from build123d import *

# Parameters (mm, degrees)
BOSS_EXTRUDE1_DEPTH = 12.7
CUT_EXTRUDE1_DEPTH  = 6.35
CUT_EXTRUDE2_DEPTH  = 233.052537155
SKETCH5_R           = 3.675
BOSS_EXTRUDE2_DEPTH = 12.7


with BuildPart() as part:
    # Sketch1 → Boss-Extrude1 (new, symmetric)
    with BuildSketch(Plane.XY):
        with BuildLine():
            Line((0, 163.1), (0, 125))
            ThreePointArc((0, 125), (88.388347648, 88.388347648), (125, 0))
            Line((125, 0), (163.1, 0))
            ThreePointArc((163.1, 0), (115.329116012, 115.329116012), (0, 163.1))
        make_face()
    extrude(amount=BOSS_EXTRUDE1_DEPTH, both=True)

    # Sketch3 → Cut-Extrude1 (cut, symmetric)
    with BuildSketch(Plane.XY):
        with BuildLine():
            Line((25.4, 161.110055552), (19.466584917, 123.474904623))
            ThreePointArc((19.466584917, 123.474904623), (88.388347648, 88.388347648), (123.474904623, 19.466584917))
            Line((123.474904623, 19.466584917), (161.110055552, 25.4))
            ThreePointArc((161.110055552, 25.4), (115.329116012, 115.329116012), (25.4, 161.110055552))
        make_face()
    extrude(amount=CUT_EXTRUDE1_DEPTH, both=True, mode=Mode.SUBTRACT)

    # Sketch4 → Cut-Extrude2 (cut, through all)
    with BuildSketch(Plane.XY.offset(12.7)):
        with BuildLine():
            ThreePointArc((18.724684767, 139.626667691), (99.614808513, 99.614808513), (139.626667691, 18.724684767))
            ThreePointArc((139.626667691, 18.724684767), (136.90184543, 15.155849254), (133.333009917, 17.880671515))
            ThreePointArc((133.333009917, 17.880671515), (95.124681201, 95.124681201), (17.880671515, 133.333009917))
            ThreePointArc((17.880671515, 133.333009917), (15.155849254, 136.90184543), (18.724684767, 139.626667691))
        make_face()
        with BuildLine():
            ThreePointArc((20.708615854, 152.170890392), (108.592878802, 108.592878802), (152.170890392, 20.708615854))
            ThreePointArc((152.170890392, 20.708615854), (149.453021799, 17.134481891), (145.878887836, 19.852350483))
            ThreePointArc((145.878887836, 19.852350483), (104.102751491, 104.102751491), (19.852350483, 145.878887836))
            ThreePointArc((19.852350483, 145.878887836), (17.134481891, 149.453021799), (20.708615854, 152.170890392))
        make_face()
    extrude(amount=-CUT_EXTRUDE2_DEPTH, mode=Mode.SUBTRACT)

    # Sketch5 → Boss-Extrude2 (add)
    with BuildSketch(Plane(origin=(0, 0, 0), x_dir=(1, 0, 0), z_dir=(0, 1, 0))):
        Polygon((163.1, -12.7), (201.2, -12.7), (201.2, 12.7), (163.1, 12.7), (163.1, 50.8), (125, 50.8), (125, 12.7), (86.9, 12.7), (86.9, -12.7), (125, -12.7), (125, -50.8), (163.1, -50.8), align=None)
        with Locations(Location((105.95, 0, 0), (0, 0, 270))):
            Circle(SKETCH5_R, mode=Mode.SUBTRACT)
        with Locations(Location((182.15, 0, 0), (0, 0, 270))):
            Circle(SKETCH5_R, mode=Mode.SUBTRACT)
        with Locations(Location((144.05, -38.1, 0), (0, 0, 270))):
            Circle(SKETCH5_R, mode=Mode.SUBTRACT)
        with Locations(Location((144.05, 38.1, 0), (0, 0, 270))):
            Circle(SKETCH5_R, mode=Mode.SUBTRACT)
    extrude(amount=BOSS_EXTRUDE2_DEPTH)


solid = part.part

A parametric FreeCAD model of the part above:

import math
import FreeCAD as App
import Part
import Sketcher
from FreeCAD import Vector
Q = App.Units.Quantity


def add_polygon(sketch, points):
    """Adds a closed chain of lines whose ends are joined by coincident constraints."""
    first, n = sketch.GeometryCount, len(points)
    for a, b in zip(points, points[1:] + points[:1]):
        sketch.addGeometry(Part.LineSegment(App.Vector(*a, 0), App.Vector(*b, 0)), False)
    for i in range(n):
        sketch.addConstraint(Sketcher.Constraint("Coincident", first + i, 2, first + (i + 1) % n, 1))

doc = App.newDocument("Part")
body = doc.addObject("PartDesign::Body", "Body")

# Sketch on XY plane
sketch1 = doc.addObject("Sketcher::SketchObject", "Sketch")
body.addObject(sketch1)
sketch1.AttachmentSupport = (doc.XY_Plane, [""])
sketch1.MapMode = "FlatFace"
sketch1.addGeometry([
    Part.LineSegment(Vector(0, 163.1, 0), Vector(0, 125, 0)),
    Part.ArcOfCircle(Part.Circle(Vector(0, 0, 0), Vector(0, 0, 1), 125), math.radians(0), math.radians(90)),
    Part.LineSegment(Vector(125, 0, 0), Vector(163.1, 0, 0)),
    Part.ArcOfCircle(Part.Circle(Vector(0, 0, 0), Vector(0, 0, 1), 163.1), math.radians(0), math.radians(90)),
], False)
sketch1.addConstraint([
    Sketcher.Constraint("Coincident", 0, 2, 1, 2),
    Sketcher.Constraint("Coincident", 1, 1, 2, 1),
    Sketcher.Constraint("Coincident", 2, 2, 3, 1),
    Sketcher.Constraint("Coincident", 3, 2, 0, 1),
    Sketcher.Constraint("Vertical", 0),
    Sketcher.Constraint("Horizontal", 2),
    Sketcher.Constraint("Coincident", 1, 3, -1, 1),
    Sketcher.Constraint("Coincident", 3, 3, -1, 1),
    Sketcher.Constraint("PointOnObject", 0, 2, -2),
    Sketcher.Constraint("PointOnObject", 1, 1, -1),
    Sketcher.Constraint("DistanceX", 2, 1, 2, 2, Q("1.5 in")),
    Sketcher.Constraint("Radius", 1, 125.0),
])
pad1 = doc.addObject("PartDesign::Pad", "Pad")
body.addObject(pad1)
pad1.Profile = sketch1
pad1.Length = Q("1 in")
pad1.Midplane = True

# Sketch on XY plane
sketch2 = doc.addObject("Sketcher::SketchObject", "Sketch001")
body.addObject(sketch2)
sketch2.AttachmentSupport = (doc.XY_Plane, [""])
sketch2.MapMode = "FlatFace"
sketch2.addGeometry([
    Part.LineSegment(Vector(25.4, 161.110056, 0), Vector(19.466585, 123.474905, 0)),
    Part.ArcOfCircle(Part.Circle(Vector(0, 0, 0), Vector(0, 0, 1), 125), math.radians(8.959292), math.radians(81.040708)),
    Part.LineSegment(Vector(123.474905, 19.466585, 0), Vector(161.110056, 25.4, 0)),
    Part.ArcOfCircle(Part.Circle(Vector(0, 0, 0), Vector(0, 0, 1), 163.1), math.radians(8.959292), math.radians(81.040708)),
], False)
sketch2.addConstraint([
    Sketcher.Constraint("Coincident", 0, 2, 1, 2),
    Sketcher.Constraint("Coincident", 1, 1, 2, 1),
    Sketcher.Constraint("Coincident", 2, 2, 3, 1),
    Sketcher.Constraint("Coincident", 3, 2, 0, 1),
    Sketcher.Constraint("Coincident", 1, 3, -1, 1),
    Sketcher.Constraint("Coincident", 3, 3, -1, 1),
    Sketcher.Constraint("DistanceY", -1, 1, 2, 2, Q("1 in")),
    Sketcher.Constraint("DistanceX", -1, 1, 3, 2, Q("1 in")),
    Sketcher.Constraint("Distance", 0, Q("1.5 in")),
    Sketcher.Constraint("Radius", 1, 125.0),
    Sketcher.Constraint("DistanceX", 0, 2, 1, 1, 104.00832),
    Sketcher.Constraint("DistanceY", 1, 1, 0, 2, 104.00832),
])
pocket1 = doc.addObject("PartDesign::Pocket", "Pocket")
body.addObject(pocket1)
pocket1.Profile = sketch2
pocket1.Length = Q("0.5 in")
pocket1.Midplane = True

# Sketch on XY plane
sketch3 = doc.addObject("Sketcher::SketchObject", "Sketch002")
body.addObject(sketch3)
sketch3.AttachmentSupport = (doc.XY_Plane, [""])
sketch3.MapMode = "FlatFace"
sketch3.AttachmentOffset = App.Placement(Vector(0, 0, 0.5 * 25.4), App.Rotation())
sketch3.addGeometry([
    Part.ArcOfCircle(Part.Circle(Vector(0, 0, 0), Vector(0, 0, 1), 140.876613), math.radians(7.6381), math.radians(82.3619)),  # 0
    Part.ArcOfCircle(Part.Circle(Vector(18.302678, 136.479839, 0), Vector(0, 0, 1), 3.174999), math.radians(82.3619), math.radians(262.3619)),  # 1
    Part.ArcOfCircle(Part.Circle(Vector(0, 0, 0), Vector(0, 0, 1), 134.526614), math.radians(7.6381), math.radians(82.3619)),  # 2
    Part.ArcOfCircle(Part.Circle(Vector(136.479839, 18.302678, 0), Vector(0, 0, 1), 3.174999), math.radians(-172.3619), math.radians(7.6381)),  # 3
    Part.ArcOfCircle(Part.Circle(Vector(0, 0, 0), Vector(0, 0, 1), 153.573522), math.radians(7.749655), math.radians(82.250345)),  # 4
    Part.ArcOfCircle(Part.Circle(Vector(20.280483, 149.024889, 0), Vector(0, 0, 1), 3.174999), math.radians(82.250345), math.radians(262.250345)),  # 5
    Part.ArcOfCircle(Part.Circle(Vector(0, 0, 0), Vector(0, 0, 1), 147.223523), math.radians(7.749655), math.radians(82.250345)),  # 6
    Part.ArcOfCircle(Part.Circle(Vector(149.024889, 20.280483, 0), Vector(0, 0, 1), 3.174999), math.radians(-172.250345), math.radians(7.749655)),  # 7
], False)
sketch3.addConstraint([
    Sketcher.Constraint("Tangent", 0, 2, 1, 1),
    Sketcher.Constraint("Tangent", 1, 2, 2, 2),
    Sketcher.Constraint("Tangent", 2, 1, 3, 1),
    Sketcher.Constraint("Tangent", 3, 2, 0, 1),
    Sketcher.Constraint("Tangent", 4, 2, 5, 1),
    Sketcher.Constraint("Tangent", 5, 2, 6, 2),
    Sketcher.Constraint("Tangent", 6, 1, 7, 1),
    Sketcher.Constraint("Tangent", 7, 2, 4, 1),
    Sketcher.Constraint("Coincident", 0, 3, -1, 1),
    Sketcher.Constraint("Coincident", 2, 3, -1, 1),
    Sketcher.Constraint("Coincident", 4, 3, -1, 1),
    Sketcher.Constraint("Coincident", 6, 3, -1, 1),
    Sketcher.Constraint("Equal", 3, 5),
    Sketcher.Constraint("Radius", 1, Q("0.125 in")),
    Sketcher.Constraint("Radius", 4, 153.573522),
    Sketcher.Constraint("DistanceX", -1, 1, 4, 2, Q("0.8152998 in")),
    Sketcher.Constraint("DistanceY", -1, 1, 7, 2, Q("0.8152998 in")),
    Sketcher.Constraint("Radius", 0, 140.876613),
    Sketcher.Constraint("DistanceX", 0, 2, 5, 3, 1.555798),
    Sketcher.Constraint("DistanceY", 3, 2, 7, 3, 1.555798),
])
pocket2 = doc.addObject("PartDesign::Pocket", "Pocket001")
body.addObject(pocket2)
pocket2.Profile = sketch3
pocket2.Type = "ThroughAll"

# Sketch on XZ plane
sketch4 = doc.addObject("Sketcher::SketchObject", "Sketch003")
body.addObject(sketch4)
sketch4.AttachmentSupport = (doc.XZ_Plane, [""])
sketch4.MapMode = "FlatFace"
add_polygon(sketch4, [(163.1, 12.7), (201.2, 12.7), (201.2, -12.7), (163.1, -12.7), (163.1, -50.8), (125, -50.8), (125, -12.7), (86.9, -12.7), (86.9, 12.7), (125, 12.7), (125, 50.8), (163.1, 50.8)])  # lines 0-11
sketch4.addGeometry(Part.Circle(Vector(144.05, 38.1, 0), Vector(0, 0, 1), 3.675), False)  # 12
sketch4.addGeometry(Part.Circle(Vector(105.95, 0, 0), Vector(0, 0, 1), 3.675), False)  # 13
sketch4.addGeometry(Part.Circle(Vector(182.15, 0, 0), Vector(0, 0, 1), 3.675), False)  # 14
sketch4.addGeometry(Part.Circle(Vector(144.05, -38.1, 0), Vector(0, 0, 1), 3.675), False)  # 15
sketch4.addConstraint([
    Sketcher.Constraint("Horizontal", 0),
    Sketcher.Constraint("Vertical", 1),
    Sketcher.Constraint("Horizontal", 2),
    Sketcher.Constraint("Vertical", 3),
    Sketcher.Constraint("Horizontal", 4),
    Sketcher.Constraint("Vertical", 5),
    Sketcher.Constraint("Horizontal", 6),
    Sketcher.Constraint("Vertical", 7),
    Sketcher.Constraint("Horizontal", 8),
    Sketcher.Constraint("Vertical", 9),
    Sketcher.Constraint("Horizontal", 10),
    Sketcher.Constraint("Vertical", 11),
    Sketcher.Constraint("Equal", 12, 13),
    Sketcher.Constraint("Equal", 13, 14),
    Sketcher.Constraint("Equal", 14, 15),
    Sketcher.Constraint("Symmetric", 12, 3, 15, 3, -1),
    Sketcher.Constraint("Symmetric", 5, 2, 8, 2, -1),
    Sketcher.Constraint("Symmetric", 3, 2, 10, 2, -1),
    Sketcher.Constraint("PointOnObject", 13, 3, -1),
    Sketcher.Constraint("PointOnObject", 14, 3, -1),
    Sketcher.Constraint("Horizontal", 2, 2, 5, 2),
    Sketcher.Constraint("Horizontal", 0, 2, 7, 2),
    Sketcher.Constraint("Equal", 2, 4),
    Sketcher.Constraint("Equal", 4, 6),
    Sketcher.Constraint("Equal", 10, 3),
    Sketcher.Constraint("DistanceY", 1, 2, 1, 1, Q("1 in")),
    Sketcher.Constraint("DistanceX", 0, 1, 0, 2, Q("1.5 in")),
    Sketcher.Constraint("DistanceX", 13, 3, 14, 3, Q("3 in")),
    Sketcher.Constraint("DistanceY", 15, 3, 12, 3, Q("3 in")),
    Sketcher.Constraint("DistanceX", 13, 3, 12, 3, Q("1.5 in")),
    Sketcher.Constraint("Diameter", 12, 7.35),
    Sketcher.Constraint("DistanceX", 14, 3, 0, 2, Q("0.75 in")),
    Sketcher.Constraint("DistanceX", -1, 1, 12, 3, 144.05),
])
pad2 = doc.addObject("PartDesign::Pad", "Pad001")
body.addObject(pad2)
pad2.Profile = sketch4
pad2.Length = Q("0.5 in")
pad2.Reversed = True

doc.recompute()
